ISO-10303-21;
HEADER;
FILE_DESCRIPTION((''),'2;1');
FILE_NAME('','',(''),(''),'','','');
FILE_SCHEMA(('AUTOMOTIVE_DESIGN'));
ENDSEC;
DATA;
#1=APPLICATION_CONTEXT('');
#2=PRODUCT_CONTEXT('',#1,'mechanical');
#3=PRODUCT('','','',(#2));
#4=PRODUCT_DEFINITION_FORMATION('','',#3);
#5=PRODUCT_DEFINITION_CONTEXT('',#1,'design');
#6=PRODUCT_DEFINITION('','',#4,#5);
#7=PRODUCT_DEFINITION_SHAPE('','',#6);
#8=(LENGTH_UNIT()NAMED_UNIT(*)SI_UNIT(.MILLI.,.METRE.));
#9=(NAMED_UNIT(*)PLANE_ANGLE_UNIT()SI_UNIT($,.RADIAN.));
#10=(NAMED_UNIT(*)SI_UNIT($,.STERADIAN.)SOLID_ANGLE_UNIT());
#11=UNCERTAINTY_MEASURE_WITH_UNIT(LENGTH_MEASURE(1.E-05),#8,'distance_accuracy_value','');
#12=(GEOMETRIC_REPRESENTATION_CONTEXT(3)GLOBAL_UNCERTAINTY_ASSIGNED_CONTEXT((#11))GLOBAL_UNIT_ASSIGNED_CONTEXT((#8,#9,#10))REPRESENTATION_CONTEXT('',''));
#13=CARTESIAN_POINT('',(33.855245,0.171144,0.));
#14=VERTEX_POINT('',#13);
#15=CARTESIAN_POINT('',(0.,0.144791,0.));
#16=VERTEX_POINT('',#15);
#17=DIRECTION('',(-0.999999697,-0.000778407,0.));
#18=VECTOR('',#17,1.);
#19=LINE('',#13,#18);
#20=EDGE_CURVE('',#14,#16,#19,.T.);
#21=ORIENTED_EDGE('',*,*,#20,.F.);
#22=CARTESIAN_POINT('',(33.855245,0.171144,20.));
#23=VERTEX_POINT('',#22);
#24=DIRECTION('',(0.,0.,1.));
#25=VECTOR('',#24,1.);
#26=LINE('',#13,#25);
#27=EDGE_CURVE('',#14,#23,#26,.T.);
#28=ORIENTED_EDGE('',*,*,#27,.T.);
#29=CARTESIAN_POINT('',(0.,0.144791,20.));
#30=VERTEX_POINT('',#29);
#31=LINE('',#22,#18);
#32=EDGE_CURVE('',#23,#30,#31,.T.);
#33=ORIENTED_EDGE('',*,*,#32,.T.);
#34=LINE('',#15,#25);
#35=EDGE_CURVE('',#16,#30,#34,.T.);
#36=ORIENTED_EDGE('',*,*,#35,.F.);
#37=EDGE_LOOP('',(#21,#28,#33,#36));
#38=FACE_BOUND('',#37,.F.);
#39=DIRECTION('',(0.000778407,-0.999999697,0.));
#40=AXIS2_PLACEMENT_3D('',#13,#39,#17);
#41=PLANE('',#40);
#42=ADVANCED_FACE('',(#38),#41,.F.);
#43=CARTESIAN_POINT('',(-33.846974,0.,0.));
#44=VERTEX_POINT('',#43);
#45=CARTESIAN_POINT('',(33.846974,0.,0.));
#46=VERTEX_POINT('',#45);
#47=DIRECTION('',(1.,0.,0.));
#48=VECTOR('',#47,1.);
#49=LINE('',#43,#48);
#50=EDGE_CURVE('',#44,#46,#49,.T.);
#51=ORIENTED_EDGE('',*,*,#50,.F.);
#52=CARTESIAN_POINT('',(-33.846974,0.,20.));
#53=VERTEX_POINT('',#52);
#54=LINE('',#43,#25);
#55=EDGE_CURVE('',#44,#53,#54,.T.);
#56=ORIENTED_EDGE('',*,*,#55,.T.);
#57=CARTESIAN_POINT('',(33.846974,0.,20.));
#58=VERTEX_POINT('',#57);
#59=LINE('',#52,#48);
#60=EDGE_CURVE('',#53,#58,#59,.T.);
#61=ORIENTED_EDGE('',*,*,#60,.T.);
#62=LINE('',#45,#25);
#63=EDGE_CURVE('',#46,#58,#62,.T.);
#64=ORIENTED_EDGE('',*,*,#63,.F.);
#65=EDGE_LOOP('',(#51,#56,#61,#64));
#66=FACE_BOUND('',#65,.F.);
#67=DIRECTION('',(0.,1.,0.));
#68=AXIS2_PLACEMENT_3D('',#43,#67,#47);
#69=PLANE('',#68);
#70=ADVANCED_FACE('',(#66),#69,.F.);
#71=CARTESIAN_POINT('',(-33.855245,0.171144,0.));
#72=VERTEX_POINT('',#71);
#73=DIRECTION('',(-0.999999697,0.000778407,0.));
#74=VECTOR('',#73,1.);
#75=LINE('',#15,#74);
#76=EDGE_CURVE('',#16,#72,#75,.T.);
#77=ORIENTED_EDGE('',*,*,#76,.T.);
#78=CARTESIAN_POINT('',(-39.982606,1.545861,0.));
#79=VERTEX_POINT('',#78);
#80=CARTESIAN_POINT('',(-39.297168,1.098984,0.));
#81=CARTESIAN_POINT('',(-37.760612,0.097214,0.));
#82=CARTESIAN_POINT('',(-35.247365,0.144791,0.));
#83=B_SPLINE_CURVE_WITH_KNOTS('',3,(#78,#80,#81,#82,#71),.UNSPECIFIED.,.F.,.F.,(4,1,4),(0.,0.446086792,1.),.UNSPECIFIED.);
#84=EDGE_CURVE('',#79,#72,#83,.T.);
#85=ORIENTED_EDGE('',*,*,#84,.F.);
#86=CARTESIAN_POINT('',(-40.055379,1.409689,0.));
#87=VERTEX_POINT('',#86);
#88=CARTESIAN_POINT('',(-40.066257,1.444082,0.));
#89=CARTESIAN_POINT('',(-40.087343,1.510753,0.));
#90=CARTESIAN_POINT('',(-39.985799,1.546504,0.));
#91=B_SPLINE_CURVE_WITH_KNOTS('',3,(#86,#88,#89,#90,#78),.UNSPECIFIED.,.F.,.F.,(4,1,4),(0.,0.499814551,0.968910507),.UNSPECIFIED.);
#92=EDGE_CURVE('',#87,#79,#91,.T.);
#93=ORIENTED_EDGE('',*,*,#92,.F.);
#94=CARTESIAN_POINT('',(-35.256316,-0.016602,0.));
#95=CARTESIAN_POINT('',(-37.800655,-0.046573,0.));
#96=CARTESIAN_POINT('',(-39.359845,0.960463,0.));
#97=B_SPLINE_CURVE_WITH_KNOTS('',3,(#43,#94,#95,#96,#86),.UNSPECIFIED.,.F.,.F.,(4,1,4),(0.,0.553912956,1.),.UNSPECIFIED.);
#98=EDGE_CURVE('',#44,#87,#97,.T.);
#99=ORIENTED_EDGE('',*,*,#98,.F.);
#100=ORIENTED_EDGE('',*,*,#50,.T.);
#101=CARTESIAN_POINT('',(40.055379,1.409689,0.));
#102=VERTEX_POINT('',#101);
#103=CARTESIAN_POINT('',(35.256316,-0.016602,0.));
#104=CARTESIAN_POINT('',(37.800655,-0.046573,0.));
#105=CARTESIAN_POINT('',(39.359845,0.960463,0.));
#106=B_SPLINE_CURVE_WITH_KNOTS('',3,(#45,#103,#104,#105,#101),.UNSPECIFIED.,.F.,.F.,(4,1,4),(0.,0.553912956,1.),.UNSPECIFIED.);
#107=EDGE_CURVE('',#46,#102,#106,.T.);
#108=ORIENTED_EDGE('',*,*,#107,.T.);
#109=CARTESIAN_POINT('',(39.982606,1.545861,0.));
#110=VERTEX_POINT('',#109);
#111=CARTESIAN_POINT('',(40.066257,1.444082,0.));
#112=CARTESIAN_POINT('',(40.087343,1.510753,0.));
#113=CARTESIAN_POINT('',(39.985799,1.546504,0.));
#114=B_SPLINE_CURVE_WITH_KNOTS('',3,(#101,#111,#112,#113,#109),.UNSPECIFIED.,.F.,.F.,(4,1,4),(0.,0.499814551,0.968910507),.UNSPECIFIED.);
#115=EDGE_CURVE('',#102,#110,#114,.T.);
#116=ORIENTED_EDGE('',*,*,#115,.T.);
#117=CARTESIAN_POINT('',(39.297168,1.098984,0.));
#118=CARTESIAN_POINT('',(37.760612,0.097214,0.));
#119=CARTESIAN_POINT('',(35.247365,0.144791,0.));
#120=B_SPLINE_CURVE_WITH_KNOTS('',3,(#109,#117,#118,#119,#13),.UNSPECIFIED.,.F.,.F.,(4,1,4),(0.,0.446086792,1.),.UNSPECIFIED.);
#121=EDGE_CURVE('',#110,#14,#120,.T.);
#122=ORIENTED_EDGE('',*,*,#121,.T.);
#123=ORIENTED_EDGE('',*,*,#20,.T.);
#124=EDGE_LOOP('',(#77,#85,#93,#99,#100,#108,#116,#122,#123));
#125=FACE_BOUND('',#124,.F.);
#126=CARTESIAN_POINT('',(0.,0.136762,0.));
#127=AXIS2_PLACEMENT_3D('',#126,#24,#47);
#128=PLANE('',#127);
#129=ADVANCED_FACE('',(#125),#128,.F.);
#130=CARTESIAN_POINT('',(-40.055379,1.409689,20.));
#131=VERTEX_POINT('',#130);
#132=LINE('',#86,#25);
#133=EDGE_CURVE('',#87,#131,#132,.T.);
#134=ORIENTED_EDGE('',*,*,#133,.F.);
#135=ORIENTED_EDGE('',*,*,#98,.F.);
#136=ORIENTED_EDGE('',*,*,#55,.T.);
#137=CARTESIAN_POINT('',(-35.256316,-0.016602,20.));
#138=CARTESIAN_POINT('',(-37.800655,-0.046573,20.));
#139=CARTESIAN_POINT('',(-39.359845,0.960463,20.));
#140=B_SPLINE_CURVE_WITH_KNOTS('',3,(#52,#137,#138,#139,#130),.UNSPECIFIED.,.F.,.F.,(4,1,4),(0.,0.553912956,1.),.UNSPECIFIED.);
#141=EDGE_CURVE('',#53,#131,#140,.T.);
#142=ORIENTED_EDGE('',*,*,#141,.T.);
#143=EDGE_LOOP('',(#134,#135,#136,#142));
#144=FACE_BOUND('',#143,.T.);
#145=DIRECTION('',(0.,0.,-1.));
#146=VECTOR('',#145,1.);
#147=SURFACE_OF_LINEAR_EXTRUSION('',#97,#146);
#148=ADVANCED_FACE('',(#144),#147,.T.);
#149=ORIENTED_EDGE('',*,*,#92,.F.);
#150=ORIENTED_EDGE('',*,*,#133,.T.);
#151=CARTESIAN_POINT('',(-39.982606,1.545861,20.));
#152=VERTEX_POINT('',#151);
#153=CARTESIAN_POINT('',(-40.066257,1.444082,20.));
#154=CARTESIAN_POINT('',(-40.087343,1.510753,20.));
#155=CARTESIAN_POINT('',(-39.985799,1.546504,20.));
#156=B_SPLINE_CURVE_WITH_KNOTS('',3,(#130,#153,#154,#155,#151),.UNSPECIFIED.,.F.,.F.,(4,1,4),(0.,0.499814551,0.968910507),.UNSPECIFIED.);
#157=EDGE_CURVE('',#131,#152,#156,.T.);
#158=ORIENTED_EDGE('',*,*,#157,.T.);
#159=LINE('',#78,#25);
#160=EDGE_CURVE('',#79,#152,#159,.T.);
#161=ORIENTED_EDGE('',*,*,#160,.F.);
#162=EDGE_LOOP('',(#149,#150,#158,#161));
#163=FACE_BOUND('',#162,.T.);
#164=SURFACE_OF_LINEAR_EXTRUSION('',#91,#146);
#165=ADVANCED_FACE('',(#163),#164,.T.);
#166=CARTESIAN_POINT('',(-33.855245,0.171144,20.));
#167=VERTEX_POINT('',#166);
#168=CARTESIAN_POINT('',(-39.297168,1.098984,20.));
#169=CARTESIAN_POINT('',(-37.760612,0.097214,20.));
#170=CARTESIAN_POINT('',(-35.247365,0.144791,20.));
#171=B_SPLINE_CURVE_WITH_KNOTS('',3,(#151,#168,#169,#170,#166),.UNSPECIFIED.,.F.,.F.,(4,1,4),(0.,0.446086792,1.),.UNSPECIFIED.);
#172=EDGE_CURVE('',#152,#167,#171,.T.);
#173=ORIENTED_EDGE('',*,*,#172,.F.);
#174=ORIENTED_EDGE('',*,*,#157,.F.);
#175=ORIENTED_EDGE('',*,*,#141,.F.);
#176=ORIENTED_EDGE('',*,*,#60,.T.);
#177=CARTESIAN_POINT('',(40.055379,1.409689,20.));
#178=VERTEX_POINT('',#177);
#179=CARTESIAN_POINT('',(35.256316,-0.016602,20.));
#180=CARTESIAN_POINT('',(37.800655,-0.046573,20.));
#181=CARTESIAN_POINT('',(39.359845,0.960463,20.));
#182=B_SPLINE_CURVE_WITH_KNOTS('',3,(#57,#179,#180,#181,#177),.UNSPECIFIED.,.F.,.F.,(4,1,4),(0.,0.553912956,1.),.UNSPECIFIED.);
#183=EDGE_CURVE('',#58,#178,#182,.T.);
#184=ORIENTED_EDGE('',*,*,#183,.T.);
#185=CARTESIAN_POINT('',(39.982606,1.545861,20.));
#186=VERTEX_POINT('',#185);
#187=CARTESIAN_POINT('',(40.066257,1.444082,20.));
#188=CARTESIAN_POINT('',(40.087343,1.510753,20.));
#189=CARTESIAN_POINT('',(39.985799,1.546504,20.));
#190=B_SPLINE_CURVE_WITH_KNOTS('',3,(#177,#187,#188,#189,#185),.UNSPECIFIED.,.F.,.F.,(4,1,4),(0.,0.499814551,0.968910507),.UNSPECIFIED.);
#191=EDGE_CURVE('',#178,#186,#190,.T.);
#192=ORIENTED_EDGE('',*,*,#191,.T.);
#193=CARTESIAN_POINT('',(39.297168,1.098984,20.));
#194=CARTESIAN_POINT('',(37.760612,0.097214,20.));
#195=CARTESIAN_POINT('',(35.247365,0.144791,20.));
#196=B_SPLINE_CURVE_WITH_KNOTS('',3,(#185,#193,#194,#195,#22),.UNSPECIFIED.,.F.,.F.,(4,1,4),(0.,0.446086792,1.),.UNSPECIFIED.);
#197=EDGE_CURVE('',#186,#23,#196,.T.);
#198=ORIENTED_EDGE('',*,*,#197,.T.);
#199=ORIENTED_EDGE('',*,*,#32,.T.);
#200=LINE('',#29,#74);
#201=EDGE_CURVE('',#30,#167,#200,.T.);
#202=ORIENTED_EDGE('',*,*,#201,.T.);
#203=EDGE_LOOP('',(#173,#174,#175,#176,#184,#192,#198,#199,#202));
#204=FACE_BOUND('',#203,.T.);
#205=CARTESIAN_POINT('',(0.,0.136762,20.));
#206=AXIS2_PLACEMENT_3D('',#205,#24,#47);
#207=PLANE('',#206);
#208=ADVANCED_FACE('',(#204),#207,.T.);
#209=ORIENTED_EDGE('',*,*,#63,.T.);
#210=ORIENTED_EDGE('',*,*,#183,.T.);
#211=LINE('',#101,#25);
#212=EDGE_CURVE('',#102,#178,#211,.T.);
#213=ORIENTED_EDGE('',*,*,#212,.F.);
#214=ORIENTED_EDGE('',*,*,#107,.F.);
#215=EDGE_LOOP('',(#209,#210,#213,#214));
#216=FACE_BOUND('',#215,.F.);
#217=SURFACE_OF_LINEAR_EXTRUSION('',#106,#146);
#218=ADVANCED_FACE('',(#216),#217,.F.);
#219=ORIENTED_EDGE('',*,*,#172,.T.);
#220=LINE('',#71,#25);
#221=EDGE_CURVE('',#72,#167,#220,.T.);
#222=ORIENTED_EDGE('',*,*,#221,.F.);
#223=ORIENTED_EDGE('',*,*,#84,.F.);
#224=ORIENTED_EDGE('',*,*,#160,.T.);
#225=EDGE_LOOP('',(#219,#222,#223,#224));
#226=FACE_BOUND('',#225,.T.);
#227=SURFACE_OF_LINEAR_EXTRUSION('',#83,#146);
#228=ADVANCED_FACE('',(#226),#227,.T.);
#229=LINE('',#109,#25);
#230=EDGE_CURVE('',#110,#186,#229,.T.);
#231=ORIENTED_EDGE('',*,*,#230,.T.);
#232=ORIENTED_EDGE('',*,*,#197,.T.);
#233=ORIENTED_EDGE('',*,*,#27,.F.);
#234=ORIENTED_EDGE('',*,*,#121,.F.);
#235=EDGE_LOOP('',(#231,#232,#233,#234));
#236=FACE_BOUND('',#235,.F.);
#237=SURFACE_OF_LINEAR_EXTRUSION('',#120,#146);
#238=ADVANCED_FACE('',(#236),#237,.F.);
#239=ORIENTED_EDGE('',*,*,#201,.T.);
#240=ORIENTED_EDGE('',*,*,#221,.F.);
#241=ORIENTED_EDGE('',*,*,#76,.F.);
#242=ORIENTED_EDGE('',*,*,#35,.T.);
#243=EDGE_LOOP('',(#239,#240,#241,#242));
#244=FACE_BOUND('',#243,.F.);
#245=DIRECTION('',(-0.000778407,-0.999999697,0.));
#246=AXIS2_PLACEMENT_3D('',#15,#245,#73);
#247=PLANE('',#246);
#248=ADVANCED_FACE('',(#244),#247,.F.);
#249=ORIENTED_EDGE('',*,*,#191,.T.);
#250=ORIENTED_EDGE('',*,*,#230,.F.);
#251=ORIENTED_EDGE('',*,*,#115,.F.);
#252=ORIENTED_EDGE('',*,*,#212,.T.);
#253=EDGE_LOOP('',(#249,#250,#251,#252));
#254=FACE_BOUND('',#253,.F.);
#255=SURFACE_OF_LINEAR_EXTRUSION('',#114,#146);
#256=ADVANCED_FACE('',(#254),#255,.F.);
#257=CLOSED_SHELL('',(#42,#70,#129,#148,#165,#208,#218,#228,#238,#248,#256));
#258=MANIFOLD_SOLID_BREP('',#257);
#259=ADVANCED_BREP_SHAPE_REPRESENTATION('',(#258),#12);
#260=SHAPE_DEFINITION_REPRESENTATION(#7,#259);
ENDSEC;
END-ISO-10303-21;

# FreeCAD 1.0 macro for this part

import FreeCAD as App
import Part
import Sketcher
from FreeCAD import Vector

doc = App.newDocument("Part")
body = doc.addObject("PartDesign::Body", "Body")

sketch1 = doc.addObject("Sketcher::SketchObject", "Sketch")
body.addObject(sketch1)
sketch1.AttachmentSupport = (doc.XY_Plane, [""])
sketch1.MapMode = "FlatFace"
sketch1.addGeometry([
    Part.LineSegment(Vector(-33.846974, 0, 0), Vector(33.846974, 0, 0)),
    Part.BSplineCurve([Vector(33.846974, 0, 0), Vector(35.256316, -0.016602, 0), Vector(37.800655, -0.046573, 0), Vector(39.359845, 0.960463, 0), Vector(40.055379, 1.409689, 0)], [4, 1, 4], [0, 0.553912956, 1], False, 3, [1, 1, 1, 1, 1], False),
    Part.BSplineCurve([Vector(40.055379, 1.409689, 0), Vector(40.066257, 1.444082, 0), Vector(40.087343, 1.510753, 0), Vector(39.985799, 1.546504, 0), Vector(39.982606, 1.545861, 0)], [4, 1, 4], [0, 0.499814551, 0.968910507], False, 3, [1, 1, 1, 1, 1], False),
    Part.BSplineCurve([Vector(39.982606, 1.545861, 0), Vector(39.297168, 1.098984, 0), Vector(37.760612, 0.097214, 0), Vector(35.247365, 0.144791, 0), Vector(33.855245, 0.171144, 0)], [4, 1, 4], [0, 0.446086792, 1], False, 3, [1, 1, 1, 1, 1], False),
    Part.LineSegment(Vector(33.855245, 0.171144, 0), Vector(0, 0.144791, 0)),
    Part.LineSegment(Vector(0, 0.144791, 0), Vector(-33.855245, 0.171144, 0)),
    Part.BSplineCurve([Vector(-39.982606, 1.545861, 0), Vector(-39.297168, 1.098984, 0), Vector(-37.760612, 0.097214, 0), Vector(-35.247365, 0.144791, 0), Vector(-33.855245, 0.171144, 0)], [4, 1, 4], [0, 0.446086792, 1], False, 3, [1, 1, 1, 1, 1], False),
    Part.BSplineCurve([Vector(-40.055379, 1.409689, 0), Vector(-40.066257, 1.444082, 0), Vector(-40.087343, 1.510753, 0), Vector(-39.985799, 1.546504, 0), Vector(-39.982606, 1.545861, 0)], [4, 1, 4], [0, 0.499814551, 0.968910507], False, 3, [1, 1, 1, 1, 1], False),
    Part.BSplineCurve([Vector(-33.846974, 0, 0), Vector(-35.256316, -0.016602, 0), Vector(-37.800655, -0.046573, 0), Vector(-39.359845, 0.960463, 0), Vector(-40.055379, 1.409689, 0)], [4, 1, 4], [0, 0.553912956, 1], False, 3, [1, 1, 1, 1, 1], False),
], False)
sketch1.addConstraint([
    Sketcher.Constraint("Block", 1),
    Sketcher.Constraint("Block", 2),
    Sketcher.Constraint("Block", 3),
    Sketcher.Constraint("Block", 6),
    Sketcher.Constraint("Block", 7),
    Sketcher.Constraint("Block", 8),
    Sketcher.Constraint("Coincident", 0, 2, 1, 1),
    Sketcher.Constraint("Coincident", 3, 2, 4, 1),
    Sketcher.Constraint("Coincident", 4, 2, 5, 1),
    Sketcher.Constraint("Coincident", 5, 2, 6, 2),
    Sketcher.Constraint("Coincident", 8, 1, 0, 1),
    Sketcher.Constraint("PointOnObject", 4, 2, -2),
    Sketcher.Constraint("DistanceY", -1, 1, 4, 2, 0.144791),
])
pad1 = doc.addObject("PartDesign::Pad", "Pad")
body.addObject(pad1)
pad1.Profile = sketch1
pad1.Length = 20

doc.recompute()
